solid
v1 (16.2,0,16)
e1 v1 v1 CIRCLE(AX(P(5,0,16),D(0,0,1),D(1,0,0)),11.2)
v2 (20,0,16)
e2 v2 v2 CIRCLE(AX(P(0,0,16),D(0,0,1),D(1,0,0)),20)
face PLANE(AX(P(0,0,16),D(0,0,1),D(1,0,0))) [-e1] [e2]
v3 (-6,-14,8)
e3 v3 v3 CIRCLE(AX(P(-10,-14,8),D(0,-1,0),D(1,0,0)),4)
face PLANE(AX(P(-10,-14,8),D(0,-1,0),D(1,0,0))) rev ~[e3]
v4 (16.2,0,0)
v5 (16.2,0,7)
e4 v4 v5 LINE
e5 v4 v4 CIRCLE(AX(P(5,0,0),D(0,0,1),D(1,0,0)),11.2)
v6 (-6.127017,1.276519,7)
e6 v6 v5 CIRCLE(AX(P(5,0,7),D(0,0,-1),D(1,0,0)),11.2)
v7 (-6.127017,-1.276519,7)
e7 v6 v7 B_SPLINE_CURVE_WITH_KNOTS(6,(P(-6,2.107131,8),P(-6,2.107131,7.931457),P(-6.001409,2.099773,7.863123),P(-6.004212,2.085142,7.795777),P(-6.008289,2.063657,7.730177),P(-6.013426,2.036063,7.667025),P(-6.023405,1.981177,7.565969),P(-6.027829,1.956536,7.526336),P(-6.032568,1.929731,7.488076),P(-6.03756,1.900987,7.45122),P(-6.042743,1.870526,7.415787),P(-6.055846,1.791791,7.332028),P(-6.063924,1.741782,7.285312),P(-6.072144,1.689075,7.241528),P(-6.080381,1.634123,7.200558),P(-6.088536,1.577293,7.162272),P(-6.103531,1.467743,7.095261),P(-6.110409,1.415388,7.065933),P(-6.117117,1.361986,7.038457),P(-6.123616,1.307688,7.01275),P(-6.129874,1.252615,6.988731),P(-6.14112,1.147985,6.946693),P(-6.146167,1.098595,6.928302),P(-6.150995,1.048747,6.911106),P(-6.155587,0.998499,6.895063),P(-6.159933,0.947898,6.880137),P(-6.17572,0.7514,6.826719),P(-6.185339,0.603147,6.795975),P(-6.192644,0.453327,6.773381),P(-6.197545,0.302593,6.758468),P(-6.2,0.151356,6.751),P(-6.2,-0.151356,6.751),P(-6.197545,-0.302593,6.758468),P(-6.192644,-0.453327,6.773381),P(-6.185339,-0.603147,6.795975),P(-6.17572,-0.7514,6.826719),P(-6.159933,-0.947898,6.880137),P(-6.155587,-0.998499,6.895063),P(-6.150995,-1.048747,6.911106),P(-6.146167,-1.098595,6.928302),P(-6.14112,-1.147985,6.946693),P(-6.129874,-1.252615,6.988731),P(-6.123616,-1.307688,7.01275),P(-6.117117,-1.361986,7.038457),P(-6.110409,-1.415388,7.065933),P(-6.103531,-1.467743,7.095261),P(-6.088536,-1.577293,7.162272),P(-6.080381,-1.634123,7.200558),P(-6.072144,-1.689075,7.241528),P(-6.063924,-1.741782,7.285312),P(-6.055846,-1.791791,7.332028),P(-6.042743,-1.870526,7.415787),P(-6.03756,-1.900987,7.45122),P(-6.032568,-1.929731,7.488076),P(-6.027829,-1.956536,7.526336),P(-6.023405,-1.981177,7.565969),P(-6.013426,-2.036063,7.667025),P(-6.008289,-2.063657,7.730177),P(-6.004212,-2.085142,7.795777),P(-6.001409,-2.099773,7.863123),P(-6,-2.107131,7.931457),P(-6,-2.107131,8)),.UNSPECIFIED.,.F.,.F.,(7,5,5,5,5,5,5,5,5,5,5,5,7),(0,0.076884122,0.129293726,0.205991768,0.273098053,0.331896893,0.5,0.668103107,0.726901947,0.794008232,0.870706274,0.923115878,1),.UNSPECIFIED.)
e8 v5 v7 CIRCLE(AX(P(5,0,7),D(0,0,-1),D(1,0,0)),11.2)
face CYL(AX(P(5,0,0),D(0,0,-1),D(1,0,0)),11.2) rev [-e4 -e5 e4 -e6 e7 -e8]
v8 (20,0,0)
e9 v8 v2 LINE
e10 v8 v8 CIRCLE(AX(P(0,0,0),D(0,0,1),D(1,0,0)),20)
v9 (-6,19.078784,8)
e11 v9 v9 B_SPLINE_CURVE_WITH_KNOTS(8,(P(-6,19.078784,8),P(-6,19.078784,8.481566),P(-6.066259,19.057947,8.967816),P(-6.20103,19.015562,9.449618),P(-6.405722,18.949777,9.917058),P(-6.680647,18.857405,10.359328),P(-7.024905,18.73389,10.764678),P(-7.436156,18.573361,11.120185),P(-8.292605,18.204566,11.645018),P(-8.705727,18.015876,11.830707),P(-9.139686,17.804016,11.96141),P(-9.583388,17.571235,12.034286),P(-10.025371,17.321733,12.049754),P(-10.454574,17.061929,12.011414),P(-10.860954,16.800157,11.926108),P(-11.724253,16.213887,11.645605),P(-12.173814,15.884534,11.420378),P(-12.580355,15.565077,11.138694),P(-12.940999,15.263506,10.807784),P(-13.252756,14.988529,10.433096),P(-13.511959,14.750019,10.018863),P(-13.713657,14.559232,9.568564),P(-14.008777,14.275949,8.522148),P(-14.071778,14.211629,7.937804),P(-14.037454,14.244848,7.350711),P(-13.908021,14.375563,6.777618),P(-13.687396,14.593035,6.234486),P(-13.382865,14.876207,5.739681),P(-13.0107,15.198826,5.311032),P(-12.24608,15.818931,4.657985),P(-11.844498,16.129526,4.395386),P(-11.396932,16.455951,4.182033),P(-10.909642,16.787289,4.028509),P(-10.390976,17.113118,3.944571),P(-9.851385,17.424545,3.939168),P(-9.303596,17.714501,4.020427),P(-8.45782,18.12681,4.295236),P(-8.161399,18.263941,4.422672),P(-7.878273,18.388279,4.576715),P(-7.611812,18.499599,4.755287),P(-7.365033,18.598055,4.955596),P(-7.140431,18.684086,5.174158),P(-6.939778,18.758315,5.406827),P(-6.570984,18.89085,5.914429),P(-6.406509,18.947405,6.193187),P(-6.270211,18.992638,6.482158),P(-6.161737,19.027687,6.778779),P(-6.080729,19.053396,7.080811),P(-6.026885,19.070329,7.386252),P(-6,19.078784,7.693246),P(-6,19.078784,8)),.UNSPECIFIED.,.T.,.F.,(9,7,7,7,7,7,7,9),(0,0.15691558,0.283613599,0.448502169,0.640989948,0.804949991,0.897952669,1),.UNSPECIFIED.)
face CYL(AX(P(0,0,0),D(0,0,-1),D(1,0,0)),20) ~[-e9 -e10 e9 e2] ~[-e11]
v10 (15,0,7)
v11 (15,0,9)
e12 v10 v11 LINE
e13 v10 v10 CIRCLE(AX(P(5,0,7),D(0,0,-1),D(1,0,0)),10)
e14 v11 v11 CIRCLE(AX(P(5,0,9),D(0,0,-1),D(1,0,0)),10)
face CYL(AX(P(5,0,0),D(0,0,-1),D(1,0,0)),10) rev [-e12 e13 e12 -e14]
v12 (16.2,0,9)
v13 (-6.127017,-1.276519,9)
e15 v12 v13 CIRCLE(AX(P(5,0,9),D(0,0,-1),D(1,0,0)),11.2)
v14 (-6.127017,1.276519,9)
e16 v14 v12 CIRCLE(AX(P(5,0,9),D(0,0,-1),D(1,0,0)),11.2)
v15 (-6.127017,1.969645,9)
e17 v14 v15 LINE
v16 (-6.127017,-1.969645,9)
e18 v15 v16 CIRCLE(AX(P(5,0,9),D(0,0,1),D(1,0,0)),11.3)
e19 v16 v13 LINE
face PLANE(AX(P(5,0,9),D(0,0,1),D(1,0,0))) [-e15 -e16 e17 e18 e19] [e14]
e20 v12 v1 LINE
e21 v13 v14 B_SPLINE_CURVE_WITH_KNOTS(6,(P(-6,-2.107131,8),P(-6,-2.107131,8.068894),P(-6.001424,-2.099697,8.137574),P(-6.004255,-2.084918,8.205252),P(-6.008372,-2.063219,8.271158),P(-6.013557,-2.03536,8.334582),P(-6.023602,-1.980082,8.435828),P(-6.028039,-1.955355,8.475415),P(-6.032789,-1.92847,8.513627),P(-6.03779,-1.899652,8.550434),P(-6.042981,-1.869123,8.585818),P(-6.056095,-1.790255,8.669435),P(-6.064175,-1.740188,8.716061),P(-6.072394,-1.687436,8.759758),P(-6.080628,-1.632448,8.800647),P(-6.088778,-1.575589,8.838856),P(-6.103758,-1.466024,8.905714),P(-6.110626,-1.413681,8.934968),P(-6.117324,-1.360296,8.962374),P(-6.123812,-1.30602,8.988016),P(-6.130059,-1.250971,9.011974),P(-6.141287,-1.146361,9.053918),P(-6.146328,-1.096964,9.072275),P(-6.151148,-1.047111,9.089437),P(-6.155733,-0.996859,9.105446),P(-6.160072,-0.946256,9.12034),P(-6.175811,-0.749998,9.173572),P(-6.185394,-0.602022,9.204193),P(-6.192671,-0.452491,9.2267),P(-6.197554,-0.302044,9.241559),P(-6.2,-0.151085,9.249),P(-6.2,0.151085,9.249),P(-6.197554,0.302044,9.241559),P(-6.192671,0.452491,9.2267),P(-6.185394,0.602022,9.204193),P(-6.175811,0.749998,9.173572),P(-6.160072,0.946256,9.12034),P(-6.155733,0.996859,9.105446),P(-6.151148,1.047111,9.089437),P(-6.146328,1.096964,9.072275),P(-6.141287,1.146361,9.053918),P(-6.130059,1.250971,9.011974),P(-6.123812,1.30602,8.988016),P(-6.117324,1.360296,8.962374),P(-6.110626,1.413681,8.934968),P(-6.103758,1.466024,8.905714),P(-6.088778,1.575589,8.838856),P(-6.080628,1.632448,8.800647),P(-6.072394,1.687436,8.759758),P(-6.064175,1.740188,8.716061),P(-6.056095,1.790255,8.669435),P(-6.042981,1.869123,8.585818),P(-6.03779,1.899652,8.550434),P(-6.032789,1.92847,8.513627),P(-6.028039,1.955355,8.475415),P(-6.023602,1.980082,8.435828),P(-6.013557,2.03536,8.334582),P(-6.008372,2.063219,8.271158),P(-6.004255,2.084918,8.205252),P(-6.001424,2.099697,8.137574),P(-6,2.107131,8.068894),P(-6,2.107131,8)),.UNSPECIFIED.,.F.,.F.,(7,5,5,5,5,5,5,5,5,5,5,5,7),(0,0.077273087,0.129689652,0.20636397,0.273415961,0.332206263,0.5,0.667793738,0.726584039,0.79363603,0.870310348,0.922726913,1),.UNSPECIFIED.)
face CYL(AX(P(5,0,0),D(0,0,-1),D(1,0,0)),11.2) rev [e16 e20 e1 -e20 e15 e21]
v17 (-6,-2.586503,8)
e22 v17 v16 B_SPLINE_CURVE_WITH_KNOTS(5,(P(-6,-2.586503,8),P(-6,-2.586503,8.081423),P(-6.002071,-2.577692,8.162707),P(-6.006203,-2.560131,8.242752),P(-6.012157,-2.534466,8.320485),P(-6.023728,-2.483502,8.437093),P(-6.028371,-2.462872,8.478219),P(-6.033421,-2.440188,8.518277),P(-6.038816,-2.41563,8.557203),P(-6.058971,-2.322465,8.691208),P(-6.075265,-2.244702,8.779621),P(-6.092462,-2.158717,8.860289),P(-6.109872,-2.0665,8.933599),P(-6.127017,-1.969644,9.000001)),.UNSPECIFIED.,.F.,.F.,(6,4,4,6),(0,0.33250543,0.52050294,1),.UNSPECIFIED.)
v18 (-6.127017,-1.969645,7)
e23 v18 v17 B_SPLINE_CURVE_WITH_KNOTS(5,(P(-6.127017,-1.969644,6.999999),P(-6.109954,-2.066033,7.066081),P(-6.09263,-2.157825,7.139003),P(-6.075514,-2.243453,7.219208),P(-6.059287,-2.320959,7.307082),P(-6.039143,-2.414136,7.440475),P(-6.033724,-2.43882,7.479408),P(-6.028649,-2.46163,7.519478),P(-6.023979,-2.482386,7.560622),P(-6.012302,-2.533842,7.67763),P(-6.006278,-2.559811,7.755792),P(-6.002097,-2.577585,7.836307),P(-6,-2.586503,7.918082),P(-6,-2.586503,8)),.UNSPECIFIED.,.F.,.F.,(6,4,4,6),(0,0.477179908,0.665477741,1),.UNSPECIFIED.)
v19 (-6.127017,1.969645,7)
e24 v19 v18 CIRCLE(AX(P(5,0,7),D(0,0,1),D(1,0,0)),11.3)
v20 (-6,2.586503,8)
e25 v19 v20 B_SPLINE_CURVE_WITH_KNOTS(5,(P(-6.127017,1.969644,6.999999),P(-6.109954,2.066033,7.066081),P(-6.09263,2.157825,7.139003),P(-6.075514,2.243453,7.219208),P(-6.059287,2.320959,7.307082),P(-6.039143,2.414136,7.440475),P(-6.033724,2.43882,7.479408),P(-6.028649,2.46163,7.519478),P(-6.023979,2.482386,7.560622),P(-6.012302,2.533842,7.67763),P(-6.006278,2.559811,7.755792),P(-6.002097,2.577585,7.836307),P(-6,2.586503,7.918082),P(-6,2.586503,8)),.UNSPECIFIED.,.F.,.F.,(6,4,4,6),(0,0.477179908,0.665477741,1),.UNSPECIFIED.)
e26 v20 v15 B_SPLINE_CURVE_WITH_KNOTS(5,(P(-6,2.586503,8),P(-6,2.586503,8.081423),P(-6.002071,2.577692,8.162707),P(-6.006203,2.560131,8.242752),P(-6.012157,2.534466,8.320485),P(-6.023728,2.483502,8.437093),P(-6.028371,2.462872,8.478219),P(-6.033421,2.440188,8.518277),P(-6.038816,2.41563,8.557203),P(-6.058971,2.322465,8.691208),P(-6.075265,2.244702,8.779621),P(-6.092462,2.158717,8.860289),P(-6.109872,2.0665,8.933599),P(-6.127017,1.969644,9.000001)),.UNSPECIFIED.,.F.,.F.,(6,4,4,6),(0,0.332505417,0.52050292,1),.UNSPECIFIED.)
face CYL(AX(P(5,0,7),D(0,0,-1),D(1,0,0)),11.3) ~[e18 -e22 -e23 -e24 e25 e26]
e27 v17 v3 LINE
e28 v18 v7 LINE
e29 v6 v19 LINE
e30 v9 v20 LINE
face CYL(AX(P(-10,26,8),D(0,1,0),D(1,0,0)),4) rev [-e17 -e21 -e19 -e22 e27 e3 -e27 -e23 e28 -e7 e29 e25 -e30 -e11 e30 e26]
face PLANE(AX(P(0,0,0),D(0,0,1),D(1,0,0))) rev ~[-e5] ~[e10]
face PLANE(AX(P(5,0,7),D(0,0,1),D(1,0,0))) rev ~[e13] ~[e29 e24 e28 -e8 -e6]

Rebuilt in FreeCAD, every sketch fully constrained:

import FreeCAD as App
import Part
import Sketcher
Q = App.Units.Quantity

doc = App.newDocument("Part")
params = doc.addObject("Spreadsheet::Sheet", "Params")
for row, (alias, value) in enumerate([
    ("sketch1_diameter", "20 mm"),
    ("pad1_length", "10 mm"),
    ("sketch2_diameter", "22.6 mm"),
    ("pad2_length", "2 mm"),
    ("sketch3_diameter", "8 mm"),
    ("pad3_length", "40 mm"),
    ("sketch4_diameter", "22.4 mm"),
    ("pad4_length", "16 mm"),
    ("sketch5_diameter", "40 mm"),
    ("pad5_length", "16 mm"),
], start=1):
    params.set(f"A{row}", alias)
    params.set(f"B{row}", "=" + value)
    params.setAlias(f"B{row}", alias)

body = doc.addObject("PartDesign::Body", "Body")

# Sketch on XY plane
sketch1 = doc.addObject("Sketcher::SketchObject", "Sketch")
body.addObject(sketch1)
sketch1.AttachmentSupport = (doc.XY_Plane, [""])
sketch1.MapMode = "FlatFace"
sketch1.addGeometry(Part.Circle(App.Vector(5, 0, 0), App.Vector(0, 0, 1), 10), False)
sketch1.addConstraint([
    Sketcher.Constraint("PointOnObject", 0, 3, -1),
    Sketcher.Constraint("Diameter", 0, Q("20 mm")),
    Sketcher.Constraint("DistanceX", -1, 1, 0, 3, Q("5 mm")),
])
sketch1.setExpression("Constraints[1]", "Params.sketch1_diameter")
pad1 = doc.addObject("PartDesign::Pad", "Pad")
body.addObject(pad1)
pad1.Profile = sketch1
pad1.setExpression("Length", "Params.pad1_length")
body2 = doc.addObject("PartDesign::Body", "Body001")

# Sketch on XY plane
sketch2 = doc.addObject("Sketcher::SketchObject", "Sketch001")
body2.addObject(sketch2)
sketch2.AttachmentSupport = (doc.getObject("XY_Plane001"), [""])
sketch2.MapMode = "FlatFace"
sketch2.AttachmentOffset = App.Placement(App.Vector(0, 0, 7), App.Rotation())
sketch2.addGeometry(Part.Circle(App.Vector(5, 0, 0), App.Vector(0, 0, 1), 11), False)
sketch2.addConstraint([
    Sketcher.Constraint("PointOnObject", 0, 3, -1),
    Sketcher.Constraint("Diameter", 0, Q("22.6 mm")),
    Sketcher.Constraint("DistanceX", -1, 1, 0, 3, Q("5 mm")),
])
sketch2.setExpression("Constraints[1]", "Params.sketch2_diameter")
pad2 = doc.addObject("PartDesign::Pad", "Pad001")
body2.addObject(pad2)
pad2.Profile = sketch2
pad2.setExpression("Length", "Params.pad2_length")
body3 = doc.addObject("PartDesign::Body", "Body002")

# Sketch on XY plane
sketch3 = doc.addObject("Sketcher::SketchObject", "Sketch002")
body3.addObject(sketch3)
sketch3.AttachmentSupport = (doc.getObject("XY_Plane002"), [""])
sketch3.MapMode = "FlatFace"
sketch3.addGeometry(Part.Circle(App.Vector(0, 0, 0), App.Vector(0, 0, 1), 4), False)
sketch3.addConstraint([
    Sketcher.Constraint("Coincident", 0, 3, -1, 1),
    Sketcher.Constraint("Diameter", 0, Q("8 mm")),
])
sketch3.setExpression("Constraints[1]", "Params.sketch3_diameter")
pad3 = doc.addObject("PartDesign::Pad", "Pad002")
body3.addObject(pad3)
pad3.Profile = sketch3
pad3.setExpression("Length", "Params.pad3_length")
body4 = doc.addObject("PartDesign::Body", "Body003")
doc.recompute()

body3.Placement = App.Placement(App.Vector(0, 0, 0), App.Rotation(App.Vector(1, 0, 0), 90))
boolean = doc.addObject("PartDesign::Boolean", "Boolean")
body4.addObject(boolean)
boolean.Type = "Fuse"
boolean.addObjects([body3])
body5 = doc.addObject("PartDesign::Body", "Body004")
doc.recompute()

body4.Placement = App.Placement(App.Vector(-10, 26, 8), App.Rotation(App.Vector(0, 0, 1), 0))
boolean2 = doc.addObject("PartDesign::Boolean", "Boolean001")
body5.addObject(boolean2)
boolean2.Type = "Fuse"
boolean2.addObjects([body4])
body6 = doc.addObject("PartDesign::Body", "Body005")

# Sketch on XY plane
sketch4 = doc.addObject("Sketcher::SketchObject", "Sketch003")
body6.addObject(sketch4)
sketch4.AttachmentSupport = (doc.getObject("XY_Plane005"), [""])
sketch4.MapMode = "FlatFace"
sketch4.addGeometry(Part.Circle(App.Vector(5, 0, 0), App.Vector(0, 0, 1), 11), False)
sketch4.addConstraint([
    Sketcher.Constraint("PointOnObject", 0, 3, -1),
    Sketcher.Constraint("Diameter", 0, Q("22.4 mm")),
    Sketcher.Constraint("DistanceX", -1, 1, 0, 3, Q("5 mm")),
])
sketch4.setExpression("Constraints[1]", "Params.sketch4_diameter")
pad4 = doc.addObject("PartDesign::Pad", "Pad003")
body6.addObject(pad4)
pad4.Profile = sketch4
pad4.setExpression("Length", "Params.pad4_length")
body7 = doc.addObject("PartDesign::Body", "Body006")

# Sketch on XY plane
sketch5 = doc.addObject("Sketcher::SketchObject", "Sketch004")
body7.addObject(sketch5)
sketch5.AttachmentSupport = (doc.getObject("XY_Plane006"), [""])
sketch5.MapMode = "FlatFace"
sketch5.addGeometry(Part.Circle(App.Vector(0, 0, 0), App.Vector(0, 0, 1), 20), False)
sketch5.addConstraint([
    Sketcher.Constraint("Coincident", 0, 3, -1, 1),
    Sketcher.Constraint("Diameter", 0, Q("40 mm")),
])
sketch5.setExpression("Constraints[1]", "Params.sketch5_diameter")
pad5 = doc.addObject("PartDesign::Pad", "Pad004")
body7.addObject(pad5)
pad5.Profile = sketch5
pad5.setExpression("Length", "Params.pad5_length")
doc.recompute()

boolean3 = doc.addObject("PartDesign::Boolean", "Boolean002")
body7.addObject(boolean3)
boolean3.Type = "Cut"
boolean3.addObjects([body6])
doc.recompute()

boolean4 = doc.addObject("PartDesign::Boolean", "Boolean003")
body7.addObject(boolean4)
boolean4.Type = "Cut"
boolean4.addObjects([body5])
doc.recompute()

boolean5 = doc.addObject("PartDesign::Boolean", "Boolean004")
body7.addObject(boolean5)
boolean5.Type = "Fuse"
boolean5.addObjects([body2])
doc.recompute()

boolean6 = doc.addObject("PartDesign::Boolean", "Boolean005")
body7.addObject(boolean6)
boolean6.Type = "Cut"
boolean6.addObjects([body])

doc.recompute()
